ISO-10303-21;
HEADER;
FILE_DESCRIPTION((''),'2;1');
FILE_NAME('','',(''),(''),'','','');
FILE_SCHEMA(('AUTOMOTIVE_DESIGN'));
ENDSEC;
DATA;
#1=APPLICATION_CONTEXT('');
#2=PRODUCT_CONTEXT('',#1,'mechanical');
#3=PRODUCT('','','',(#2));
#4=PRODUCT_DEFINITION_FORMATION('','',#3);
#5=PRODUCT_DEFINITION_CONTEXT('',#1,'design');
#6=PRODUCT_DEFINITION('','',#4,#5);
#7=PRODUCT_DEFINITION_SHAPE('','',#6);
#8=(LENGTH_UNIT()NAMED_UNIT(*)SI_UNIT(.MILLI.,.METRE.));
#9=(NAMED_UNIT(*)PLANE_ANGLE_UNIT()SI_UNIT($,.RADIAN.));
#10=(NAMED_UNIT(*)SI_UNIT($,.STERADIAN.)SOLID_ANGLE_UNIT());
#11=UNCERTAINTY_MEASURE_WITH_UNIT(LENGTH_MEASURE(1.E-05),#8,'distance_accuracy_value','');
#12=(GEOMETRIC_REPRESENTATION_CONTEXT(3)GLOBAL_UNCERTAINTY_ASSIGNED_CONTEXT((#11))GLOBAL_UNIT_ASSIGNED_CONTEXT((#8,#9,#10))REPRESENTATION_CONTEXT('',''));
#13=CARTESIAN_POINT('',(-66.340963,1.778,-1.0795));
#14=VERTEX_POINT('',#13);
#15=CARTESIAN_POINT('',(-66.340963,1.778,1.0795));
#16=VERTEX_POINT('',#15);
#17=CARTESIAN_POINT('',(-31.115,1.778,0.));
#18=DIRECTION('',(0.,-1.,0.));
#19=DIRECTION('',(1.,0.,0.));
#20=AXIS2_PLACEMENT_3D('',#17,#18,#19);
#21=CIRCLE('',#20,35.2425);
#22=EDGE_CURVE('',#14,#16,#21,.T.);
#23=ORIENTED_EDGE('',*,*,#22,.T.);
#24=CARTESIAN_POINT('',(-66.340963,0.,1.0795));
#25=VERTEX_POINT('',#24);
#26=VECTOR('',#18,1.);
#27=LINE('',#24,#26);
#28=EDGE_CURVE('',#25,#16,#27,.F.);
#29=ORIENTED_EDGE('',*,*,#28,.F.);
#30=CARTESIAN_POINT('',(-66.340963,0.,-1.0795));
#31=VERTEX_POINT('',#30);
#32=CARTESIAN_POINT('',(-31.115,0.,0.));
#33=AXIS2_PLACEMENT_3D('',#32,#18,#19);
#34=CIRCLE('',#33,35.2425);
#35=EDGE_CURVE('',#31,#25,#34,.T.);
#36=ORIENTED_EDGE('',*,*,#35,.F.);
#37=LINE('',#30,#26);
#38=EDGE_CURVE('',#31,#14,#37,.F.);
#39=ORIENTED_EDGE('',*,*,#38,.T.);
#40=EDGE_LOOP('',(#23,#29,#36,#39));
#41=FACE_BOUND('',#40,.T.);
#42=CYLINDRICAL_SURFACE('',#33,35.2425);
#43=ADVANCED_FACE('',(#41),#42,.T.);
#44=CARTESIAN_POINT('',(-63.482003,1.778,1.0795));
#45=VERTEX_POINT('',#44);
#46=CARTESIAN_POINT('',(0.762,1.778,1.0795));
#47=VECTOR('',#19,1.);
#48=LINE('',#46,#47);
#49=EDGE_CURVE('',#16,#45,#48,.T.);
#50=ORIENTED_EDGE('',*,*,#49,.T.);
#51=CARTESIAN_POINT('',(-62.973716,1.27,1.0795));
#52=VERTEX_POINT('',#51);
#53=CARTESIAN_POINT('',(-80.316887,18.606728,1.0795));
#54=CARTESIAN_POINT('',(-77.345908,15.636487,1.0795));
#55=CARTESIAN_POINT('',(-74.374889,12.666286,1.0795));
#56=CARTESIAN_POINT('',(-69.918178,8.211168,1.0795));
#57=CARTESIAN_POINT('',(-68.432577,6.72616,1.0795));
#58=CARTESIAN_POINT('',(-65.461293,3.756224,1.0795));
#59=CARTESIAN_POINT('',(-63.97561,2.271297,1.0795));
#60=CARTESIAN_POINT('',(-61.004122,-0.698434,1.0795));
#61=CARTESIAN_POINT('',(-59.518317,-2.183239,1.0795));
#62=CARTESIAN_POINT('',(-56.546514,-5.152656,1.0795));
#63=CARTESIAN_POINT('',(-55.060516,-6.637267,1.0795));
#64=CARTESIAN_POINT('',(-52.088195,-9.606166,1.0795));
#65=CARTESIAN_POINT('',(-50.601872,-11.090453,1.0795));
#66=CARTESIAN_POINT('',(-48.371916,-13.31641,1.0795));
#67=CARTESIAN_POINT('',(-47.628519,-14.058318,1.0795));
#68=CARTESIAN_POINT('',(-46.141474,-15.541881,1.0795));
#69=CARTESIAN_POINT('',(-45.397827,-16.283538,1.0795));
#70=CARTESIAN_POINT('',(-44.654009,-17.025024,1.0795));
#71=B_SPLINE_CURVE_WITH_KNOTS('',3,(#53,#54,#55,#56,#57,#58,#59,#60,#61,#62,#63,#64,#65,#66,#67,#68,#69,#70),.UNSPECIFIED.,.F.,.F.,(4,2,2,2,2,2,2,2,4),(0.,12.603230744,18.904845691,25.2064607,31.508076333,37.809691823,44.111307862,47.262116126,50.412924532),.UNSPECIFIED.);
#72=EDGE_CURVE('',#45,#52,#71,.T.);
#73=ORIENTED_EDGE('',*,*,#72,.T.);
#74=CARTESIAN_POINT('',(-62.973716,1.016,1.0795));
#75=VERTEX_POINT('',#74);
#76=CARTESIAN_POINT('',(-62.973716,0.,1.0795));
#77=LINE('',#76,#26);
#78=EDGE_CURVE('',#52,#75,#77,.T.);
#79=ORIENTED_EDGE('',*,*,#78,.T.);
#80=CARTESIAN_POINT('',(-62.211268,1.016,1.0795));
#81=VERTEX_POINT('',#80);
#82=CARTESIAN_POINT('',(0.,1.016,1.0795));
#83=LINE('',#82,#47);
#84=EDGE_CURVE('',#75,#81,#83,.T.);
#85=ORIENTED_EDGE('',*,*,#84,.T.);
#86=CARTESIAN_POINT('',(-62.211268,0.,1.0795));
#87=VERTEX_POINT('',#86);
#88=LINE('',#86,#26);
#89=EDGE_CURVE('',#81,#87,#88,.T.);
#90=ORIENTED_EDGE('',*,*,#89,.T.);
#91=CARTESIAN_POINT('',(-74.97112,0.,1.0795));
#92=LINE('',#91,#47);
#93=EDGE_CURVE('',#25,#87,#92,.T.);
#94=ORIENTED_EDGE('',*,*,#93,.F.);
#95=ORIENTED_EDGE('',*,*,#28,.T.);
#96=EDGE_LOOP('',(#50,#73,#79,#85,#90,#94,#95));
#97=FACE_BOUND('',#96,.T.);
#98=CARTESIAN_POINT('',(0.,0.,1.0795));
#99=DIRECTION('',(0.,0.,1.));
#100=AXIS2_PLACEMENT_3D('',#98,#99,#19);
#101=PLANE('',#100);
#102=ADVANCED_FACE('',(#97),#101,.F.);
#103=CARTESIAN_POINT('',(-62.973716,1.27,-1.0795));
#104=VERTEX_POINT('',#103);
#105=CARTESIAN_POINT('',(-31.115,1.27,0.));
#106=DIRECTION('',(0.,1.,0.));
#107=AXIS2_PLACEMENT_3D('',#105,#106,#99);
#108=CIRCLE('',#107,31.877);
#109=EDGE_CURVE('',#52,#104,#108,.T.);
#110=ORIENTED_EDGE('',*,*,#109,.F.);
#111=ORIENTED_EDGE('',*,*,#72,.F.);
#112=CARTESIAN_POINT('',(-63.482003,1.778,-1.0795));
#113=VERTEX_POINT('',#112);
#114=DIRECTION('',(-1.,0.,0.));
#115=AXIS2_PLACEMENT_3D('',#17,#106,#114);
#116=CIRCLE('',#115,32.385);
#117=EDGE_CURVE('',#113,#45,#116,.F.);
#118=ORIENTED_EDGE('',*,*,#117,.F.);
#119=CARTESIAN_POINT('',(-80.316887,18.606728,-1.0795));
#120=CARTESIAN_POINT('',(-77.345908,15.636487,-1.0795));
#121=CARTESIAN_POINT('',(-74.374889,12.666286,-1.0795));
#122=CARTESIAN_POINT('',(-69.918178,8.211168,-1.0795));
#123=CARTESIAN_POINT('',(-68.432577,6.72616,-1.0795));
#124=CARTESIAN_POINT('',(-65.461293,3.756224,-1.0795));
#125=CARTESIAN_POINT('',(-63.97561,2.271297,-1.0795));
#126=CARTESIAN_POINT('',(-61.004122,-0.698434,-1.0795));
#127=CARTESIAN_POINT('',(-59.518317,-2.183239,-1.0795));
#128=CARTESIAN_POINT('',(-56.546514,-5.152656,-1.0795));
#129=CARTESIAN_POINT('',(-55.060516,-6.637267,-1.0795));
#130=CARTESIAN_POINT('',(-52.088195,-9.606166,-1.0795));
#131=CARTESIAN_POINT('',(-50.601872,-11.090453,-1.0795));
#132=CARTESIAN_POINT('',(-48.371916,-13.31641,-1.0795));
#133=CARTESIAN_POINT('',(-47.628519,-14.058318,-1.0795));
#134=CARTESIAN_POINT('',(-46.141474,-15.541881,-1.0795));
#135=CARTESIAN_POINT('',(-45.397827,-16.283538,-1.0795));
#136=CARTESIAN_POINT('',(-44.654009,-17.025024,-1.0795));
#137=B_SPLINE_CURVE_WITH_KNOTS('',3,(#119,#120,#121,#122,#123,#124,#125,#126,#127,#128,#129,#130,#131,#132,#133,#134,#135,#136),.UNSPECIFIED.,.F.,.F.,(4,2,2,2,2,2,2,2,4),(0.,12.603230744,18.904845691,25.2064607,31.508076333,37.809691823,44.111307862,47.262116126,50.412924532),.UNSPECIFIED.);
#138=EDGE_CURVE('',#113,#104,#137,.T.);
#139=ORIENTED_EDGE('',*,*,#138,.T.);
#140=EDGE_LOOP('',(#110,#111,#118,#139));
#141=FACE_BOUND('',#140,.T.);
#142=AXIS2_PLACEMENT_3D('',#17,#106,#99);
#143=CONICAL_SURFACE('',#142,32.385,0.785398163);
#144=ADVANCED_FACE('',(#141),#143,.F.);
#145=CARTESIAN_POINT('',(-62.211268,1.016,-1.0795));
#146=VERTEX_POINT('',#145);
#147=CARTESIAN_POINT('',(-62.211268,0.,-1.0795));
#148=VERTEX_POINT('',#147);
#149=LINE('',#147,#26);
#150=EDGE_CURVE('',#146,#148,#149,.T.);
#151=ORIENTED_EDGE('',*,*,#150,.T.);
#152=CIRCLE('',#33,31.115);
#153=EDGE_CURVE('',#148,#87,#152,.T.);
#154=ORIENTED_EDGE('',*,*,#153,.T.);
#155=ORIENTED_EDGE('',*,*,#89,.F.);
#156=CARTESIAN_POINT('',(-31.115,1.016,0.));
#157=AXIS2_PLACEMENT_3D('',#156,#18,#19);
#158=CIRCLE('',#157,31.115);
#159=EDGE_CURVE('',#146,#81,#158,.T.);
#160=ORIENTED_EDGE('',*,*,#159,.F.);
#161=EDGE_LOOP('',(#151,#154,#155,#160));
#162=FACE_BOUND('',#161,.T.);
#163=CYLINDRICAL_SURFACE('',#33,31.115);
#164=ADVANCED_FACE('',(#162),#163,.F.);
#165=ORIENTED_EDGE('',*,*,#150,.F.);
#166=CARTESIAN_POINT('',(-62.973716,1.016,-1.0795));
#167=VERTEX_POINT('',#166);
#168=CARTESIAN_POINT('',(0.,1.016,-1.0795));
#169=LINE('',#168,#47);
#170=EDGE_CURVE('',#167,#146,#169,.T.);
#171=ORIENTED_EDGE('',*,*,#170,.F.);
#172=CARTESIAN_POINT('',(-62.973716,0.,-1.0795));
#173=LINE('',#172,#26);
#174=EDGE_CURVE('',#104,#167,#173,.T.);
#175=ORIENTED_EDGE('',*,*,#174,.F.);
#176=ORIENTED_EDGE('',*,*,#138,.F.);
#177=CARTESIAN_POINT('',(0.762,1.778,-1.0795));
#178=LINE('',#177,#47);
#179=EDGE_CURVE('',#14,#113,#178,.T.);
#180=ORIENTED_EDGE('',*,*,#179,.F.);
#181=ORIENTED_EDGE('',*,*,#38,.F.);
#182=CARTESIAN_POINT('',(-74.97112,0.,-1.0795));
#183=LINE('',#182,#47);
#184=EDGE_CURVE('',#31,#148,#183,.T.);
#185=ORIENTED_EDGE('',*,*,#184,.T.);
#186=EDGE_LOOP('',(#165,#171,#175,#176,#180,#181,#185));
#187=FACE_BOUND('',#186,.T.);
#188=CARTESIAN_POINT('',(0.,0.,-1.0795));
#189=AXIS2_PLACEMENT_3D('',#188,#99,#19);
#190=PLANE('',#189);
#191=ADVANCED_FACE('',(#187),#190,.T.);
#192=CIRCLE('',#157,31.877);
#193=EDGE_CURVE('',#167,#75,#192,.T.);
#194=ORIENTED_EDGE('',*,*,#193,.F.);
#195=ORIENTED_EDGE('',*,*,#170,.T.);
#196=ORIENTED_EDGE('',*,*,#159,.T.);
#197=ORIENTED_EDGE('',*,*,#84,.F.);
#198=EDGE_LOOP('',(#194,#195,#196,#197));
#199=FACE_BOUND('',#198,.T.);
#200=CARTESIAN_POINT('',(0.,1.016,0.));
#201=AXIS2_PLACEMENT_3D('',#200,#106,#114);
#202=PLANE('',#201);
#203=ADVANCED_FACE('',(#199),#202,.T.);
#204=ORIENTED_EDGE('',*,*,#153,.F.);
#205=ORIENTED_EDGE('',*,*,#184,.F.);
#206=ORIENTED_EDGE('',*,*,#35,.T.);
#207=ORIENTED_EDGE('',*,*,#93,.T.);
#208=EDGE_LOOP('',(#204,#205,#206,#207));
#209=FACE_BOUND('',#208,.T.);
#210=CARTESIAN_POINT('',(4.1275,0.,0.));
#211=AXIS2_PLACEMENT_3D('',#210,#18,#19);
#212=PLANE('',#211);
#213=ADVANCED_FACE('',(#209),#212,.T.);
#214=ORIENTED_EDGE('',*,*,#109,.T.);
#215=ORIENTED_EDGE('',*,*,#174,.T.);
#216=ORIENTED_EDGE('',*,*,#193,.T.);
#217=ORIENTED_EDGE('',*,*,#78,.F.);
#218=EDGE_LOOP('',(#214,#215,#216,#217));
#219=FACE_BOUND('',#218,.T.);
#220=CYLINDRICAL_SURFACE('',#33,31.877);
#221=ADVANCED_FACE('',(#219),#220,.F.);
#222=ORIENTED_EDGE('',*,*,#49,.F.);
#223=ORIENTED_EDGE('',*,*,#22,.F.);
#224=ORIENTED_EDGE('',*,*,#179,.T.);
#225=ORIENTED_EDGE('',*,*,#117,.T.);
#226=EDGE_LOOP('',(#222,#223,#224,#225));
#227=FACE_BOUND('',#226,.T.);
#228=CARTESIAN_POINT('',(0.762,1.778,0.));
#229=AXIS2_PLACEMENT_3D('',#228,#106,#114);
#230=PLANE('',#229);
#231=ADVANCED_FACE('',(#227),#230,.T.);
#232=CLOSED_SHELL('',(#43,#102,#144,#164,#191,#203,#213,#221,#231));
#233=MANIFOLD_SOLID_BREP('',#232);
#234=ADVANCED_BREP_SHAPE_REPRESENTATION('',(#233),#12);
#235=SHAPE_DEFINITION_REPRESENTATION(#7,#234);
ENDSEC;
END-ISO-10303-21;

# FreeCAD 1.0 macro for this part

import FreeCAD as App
import Part
import Sketcher
Q = App.Units.Quantity


def edges_at(feature, points):
    """Names of the edges that pass closest to the given points."""
    edges = feature.Shape.Edges
    near = lambda p: min(range(len(edges)), key=lambda i: edges[i].distToShape(Part.Vertex(*p))[0])
    return sorted({f"Edge{near(p) + 1}" for p in points})


def add_polygon(sketch, points):
    """Adds a closed chain of lines whose ends are joined by coincident constraints."""
    first, n = sketch.GeometryCount, len(points)
    for a, b in zip(points, points[1:] + points[:1]):
        sketch.addGeometry(Part.LineSegment(App.Vector(*a, 0), App.Vector(*b, 0)), False)
    for i in range(n):
        sketch.addConstraint(Sketcher.Constraint("Coincident", first + i, 2, first + (i + 1) % n, 1))

doc = App.newDocument("Part")
body = doc.addObject("PartDesign::Body", "Body")

# Sketch on XY plane
sketch1 = doc.addObject("Sketcher::SketchObject", "Sketch")
body.addObject(sketch1)
sketch1.AttachmentSupport = (doc.XY_Plane, [""])
sketch1.MapMode = "FlatFace"
add_polygon(sketch1, [(4.1, 0), (4.1, 1.8), (0.8, 1.8), (0.8, 1), (0, 1), (0, 0)])  # lines 0-5
sketch1.addGeometry(Part.LineSegment(App.Vector(-31.1, 0, 0), App.Vector(-31.1, 1.8, 0)), True)  # axis
sketch1.addConstraint([
    Sketcher.Constraint("Vertical", 0),
    Sketcher.Constraint("Horizontal", 1),
    Sketcher.Constraint("Vertical", 2),
    Sketcher.Constraint("Horizontal", 3),
    Sketcher.Constraint("Vertical", 4),
    Sketcher.Constraint("Horizontal", 5),
    Sketcher.Constraint("Vertical", 6),
    Sketcher.Constraint("Coincident", 4, 2, -1, 1),
    Sketcher.Constraint("PointOnObject", 6, 1, -1),
    Sketcher.Constraint("Horizontal", 1, 2, 6, 2),
    Sketcher.Constraint("Equal", 3, 2),
    Sketcher.Constraint("DistanceX", 3, 2, 3, 1, Q("0.03 in")),
    Sketcher.Constraint("DistanceY", 0, 1, 0, 2, Q("0.07 in")),
    Sketcher.Constraint("DistanceX", 1, 2, 1, 1, Q("0.1325 in")),
    Sketcher.Constraint("DistanceX", 6, 1, -1, 1, Q("1.225 in")),
])
revolution = doc.addObject("PartDesign::Revolution", "Revolution")
body.addObject(revolution)
revolution.Profile = sketch1
revolution.ReferenceAxis = (sketch1, ["Axis0"])
revolution.Angle = 360
doc.recompute()

chamfer = doc.addObject("PartDesign::Chamfer", "Chamfer")
body.addObject(chamfer)
chamfer.Base = (revolution, edges_at(revolution, [(-62.992, 1.778, 0)]))
chamfer.Size = Q("0.02 in")

# Sketch on XY plane
sketch2 = doc.addObject("Sketcher::SketchObject", "Sketch001")
body.addObject(sketch2)
sketch2.AttachmentSupport = (doc.XY_Plane, [""])
sketch2.MapMode = "FlatFace"
add_polygon(sketch2, [(-75, 3.4), (-75, 0), (-49.5, 0), (-49.5, 3.4)])  # lines 0-3
sketch2.addConstraint([
    Sketcher.Constraint("Vertical", 0),
    Sketcher.Constraint("Horizontal", 1),
    Sketcher.Constraint("Vertical", 2),
    Sketcher.Constraint("Horizontal", 3),
    Sketcher.Constraint("PointOnObject", 0, 2, -1),
    Sketcher.Constraint("DistanceX", 1, 1, 1, 2, Q("25.449079 mm")),
    Sketcher.Constraint("DistanceY", 0, 2, 0, 1, Q("3.392379 mm")),
    Sketcher.Constraint("DistanceX", 0, 2, -1, 1, Q("74.97112 mm")),
])
pocket1 = doc.addObject("PartDesign::Pocket", "Pocket")
body.addObject(pocket1)
pocket1.Profile = sketch2
pocket1.Type = "TwoLengths"
pocket1.Length = Q("0.0425 in")
pocket1.Length2 = Q("0.0425 in")
pocket1.Reversed = True

doc.recompute()
